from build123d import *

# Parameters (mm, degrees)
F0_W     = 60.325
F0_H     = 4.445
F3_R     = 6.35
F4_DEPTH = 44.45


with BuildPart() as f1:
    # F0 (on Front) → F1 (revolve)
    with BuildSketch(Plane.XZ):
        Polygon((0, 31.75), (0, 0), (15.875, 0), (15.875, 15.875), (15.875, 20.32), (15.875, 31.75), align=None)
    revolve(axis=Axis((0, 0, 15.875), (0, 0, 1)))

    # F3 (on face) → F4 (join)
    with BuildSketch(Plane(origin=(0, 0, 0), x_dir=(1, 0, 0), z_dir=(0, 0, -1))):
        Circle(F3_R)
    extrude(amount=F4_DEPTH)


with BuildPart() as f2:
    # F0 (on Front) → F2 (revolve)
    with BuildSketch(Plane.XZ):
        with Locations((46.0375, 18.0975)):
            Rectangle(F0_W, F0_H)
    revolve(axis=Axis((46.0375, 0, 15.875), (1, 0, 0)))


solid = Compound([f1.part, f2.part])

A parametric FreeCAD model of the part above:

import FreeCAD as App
import Part
import Sketcher
from FreeCAD import Vector
Q = App.Units.Quantity

doc = App.newDocument("Part")
body = doc.addObject("PartDesign::Body", "Body")

sketch1 = body.newObject("Sketcher::SketchObject", "Sketch")
sketch1.AttachmentSupport = (doc.getObject("XZ_Plane"), [""])
sketch1.MapMode = "FlatFace"
sketch1.addGeometry(Part.LineSegment(Vector(0, 32, 0), Vector(0, 0, 0)), False)
sketch1.addGeometry(Part.LineSegment(Vector(0, 0, 0), Vector(16, 0, 0)), False)
sketch1.addGeometry(Part.LineSegment(Vector(16, 0, 0), Vector(16, 32, 0)), False)
sketch1.addGeometry(Part.LineSegment(Vector(16, 32, 0), Vector(0, 32, 0)), False)
sketch1.addConstraint(Sketcher.Constraint("Coincident", 0, 2, 1, 1))
sketch1.addConstraint(Sketcher.Constraint("Coincident", 1, 2, 2, 1))
sketch1.addConstraint(Sketcher.Constraint("Coincident", 2, 2, 3, 1))
sketch1.addConstraint(Sketcher.Constraint("Coincident", 3, 2, 0, 1))
sketch1.addConstraint(Sketcher.Constraint("Vertical", 0))
sketch1.addConstraint(Sketcher.Constraint("Horizontal", 1))
sketch1.addConstraint(Sketcher.Constraint("Vertical", 2))
sketch1.addConstraint(Sketcher.Constraint("Horizontal", 3))
sketch1.addConstraint(Sketcher.Constraint("Coincident", 0, 2, -1, 1))
sketch1.addConstraint(Sketcher.Constraint("DistanceY", 0, 2, 0, 1, Q("1.25 in")))
sketch1.addConstraint(Sketcher.Constraint("DistanceX", 1, 1, 1, 2, Q("0.625 in")))
revolution = body.newObject("PartDesign::Revolution", "Revolution")
revolution.Profile = sketch1
revolution.ReferenceAxis = (sketch1, ["V_Axis"])
revolution.Angle = 360

sketch2 = body.newObject("Sketcher::SketchObject", "Sketch001")
sketch2.AttachmentSupport = (doc.getObject("XY_Plane"), [""])
sketch2.MapMode = "FlatFace"
sketch2.addGeometry(Part.Circle(Vector(0, 0, 0), Vector(0, 0, 1), 6), False)
sketch2.addConstraint(Sketcher.Constraint("Coincident", 0, 3, -1, 1))
sketch2.addConstraint(Sketcher.Constraint("Diameter", 0, Q("0.5 in")))
pad1 = body.newObject("PartDesign::Pad", "Pad")
pad1.Profile = sketch2
pad1.Length = Q("1.75 in")
pad1.Reversed = True
body2 = doc.addObject("PartDesign::Body", "Body001")

sketch3 = body2.newObject("Sketcher::SketchObject", "Sketch002")
sketch3.AttachmentSupport = (doc.getObject("XZ_Plane001"), [""])
sketch3.MapMode = "FlatFace"
sketch3.addGeometry(Part.LineSegment(Vector(15.9, 20.3, 0), Vector(15.9, 15.9, 0)), False)
sketch3.addGeometry(Part.LineSegment(Vector(15.9, 15.9, 0), Vector(76.2, 15.9, 0)), False)
sketch3.addGeometry(Part.LineSegment(Vector(76.2, 15.9, 0), Vector(76.2, 20.3, 0)), False)
sketch3.addGeometry(Part.LineSegment(Vector(76.2, 20.3, 0), Vector(15.9, 20.3, 0)), False)
sketch3.addGeometry(Part.LineSegment(Vector(15.9, 15.9, 0), Vector(76.2, 15.9, 0)), True)
sketch3.addConstraint(Sketcher.Constraint("Coincident", 0, 2, 1, 1))
sketch3.addConstraint(Sketcher.Constraint("Coincident", 1, 2, 2, 1))
sketch3.addConstraint(Sketcher.Constraint("Coincident", 2, 2, 3, 1))
sketch3.addConstraint(Sketcher.Constraint("Coincident", 3, 2, 0, 1))
sketch3.addConstraint(Sketcher.Constraint("Vertical", 0))
sketch3.addConstraint(Sketcher.Constraint("Horizontal", 1))
sketch3.addConstraint(Sketcher.Constraint("Vertical", 2))
sketch3.addConstraint(Sketcher.Constraint("Horizontal", 3))
sketch3.addConstraint(Sketcher.Constraint("Horizontal", 4))
sketch3.addConstraint(Sketcher.Constraint("Coincident", 4, 1, 0, 2))
sketch3.addConstraint(Sketcher.Constraint("Vertical", 2, 2, 4, 2))
sketch3.addConstraint(Sketcher.Constraint("DistanceX", -1, 1, 1, 2, Q("3 in")))
sketch3.addConstraint(Sketcher.Constraint("DistanceY", -1, 1, 2, 2, Q("0.8 in")))
sketch3.addConstraint(Sketcher.Constraint("DistanceX", 1, 1, 1, 2, Q("2.375 in")))
sketch3.addConstraint(Sketcher.Constraint("DistanceY", 0, 2, 0, 1, Q("0.175 in")))
revolution2 = body2.newObject("PartDesign::Revolution", "Revolution001")
revolution2.Profile = sketch3
revolution2.ReferenceAxis = (sketch3, ["Axis0"])
revolution2.Angle = 360

doc.recompute()
